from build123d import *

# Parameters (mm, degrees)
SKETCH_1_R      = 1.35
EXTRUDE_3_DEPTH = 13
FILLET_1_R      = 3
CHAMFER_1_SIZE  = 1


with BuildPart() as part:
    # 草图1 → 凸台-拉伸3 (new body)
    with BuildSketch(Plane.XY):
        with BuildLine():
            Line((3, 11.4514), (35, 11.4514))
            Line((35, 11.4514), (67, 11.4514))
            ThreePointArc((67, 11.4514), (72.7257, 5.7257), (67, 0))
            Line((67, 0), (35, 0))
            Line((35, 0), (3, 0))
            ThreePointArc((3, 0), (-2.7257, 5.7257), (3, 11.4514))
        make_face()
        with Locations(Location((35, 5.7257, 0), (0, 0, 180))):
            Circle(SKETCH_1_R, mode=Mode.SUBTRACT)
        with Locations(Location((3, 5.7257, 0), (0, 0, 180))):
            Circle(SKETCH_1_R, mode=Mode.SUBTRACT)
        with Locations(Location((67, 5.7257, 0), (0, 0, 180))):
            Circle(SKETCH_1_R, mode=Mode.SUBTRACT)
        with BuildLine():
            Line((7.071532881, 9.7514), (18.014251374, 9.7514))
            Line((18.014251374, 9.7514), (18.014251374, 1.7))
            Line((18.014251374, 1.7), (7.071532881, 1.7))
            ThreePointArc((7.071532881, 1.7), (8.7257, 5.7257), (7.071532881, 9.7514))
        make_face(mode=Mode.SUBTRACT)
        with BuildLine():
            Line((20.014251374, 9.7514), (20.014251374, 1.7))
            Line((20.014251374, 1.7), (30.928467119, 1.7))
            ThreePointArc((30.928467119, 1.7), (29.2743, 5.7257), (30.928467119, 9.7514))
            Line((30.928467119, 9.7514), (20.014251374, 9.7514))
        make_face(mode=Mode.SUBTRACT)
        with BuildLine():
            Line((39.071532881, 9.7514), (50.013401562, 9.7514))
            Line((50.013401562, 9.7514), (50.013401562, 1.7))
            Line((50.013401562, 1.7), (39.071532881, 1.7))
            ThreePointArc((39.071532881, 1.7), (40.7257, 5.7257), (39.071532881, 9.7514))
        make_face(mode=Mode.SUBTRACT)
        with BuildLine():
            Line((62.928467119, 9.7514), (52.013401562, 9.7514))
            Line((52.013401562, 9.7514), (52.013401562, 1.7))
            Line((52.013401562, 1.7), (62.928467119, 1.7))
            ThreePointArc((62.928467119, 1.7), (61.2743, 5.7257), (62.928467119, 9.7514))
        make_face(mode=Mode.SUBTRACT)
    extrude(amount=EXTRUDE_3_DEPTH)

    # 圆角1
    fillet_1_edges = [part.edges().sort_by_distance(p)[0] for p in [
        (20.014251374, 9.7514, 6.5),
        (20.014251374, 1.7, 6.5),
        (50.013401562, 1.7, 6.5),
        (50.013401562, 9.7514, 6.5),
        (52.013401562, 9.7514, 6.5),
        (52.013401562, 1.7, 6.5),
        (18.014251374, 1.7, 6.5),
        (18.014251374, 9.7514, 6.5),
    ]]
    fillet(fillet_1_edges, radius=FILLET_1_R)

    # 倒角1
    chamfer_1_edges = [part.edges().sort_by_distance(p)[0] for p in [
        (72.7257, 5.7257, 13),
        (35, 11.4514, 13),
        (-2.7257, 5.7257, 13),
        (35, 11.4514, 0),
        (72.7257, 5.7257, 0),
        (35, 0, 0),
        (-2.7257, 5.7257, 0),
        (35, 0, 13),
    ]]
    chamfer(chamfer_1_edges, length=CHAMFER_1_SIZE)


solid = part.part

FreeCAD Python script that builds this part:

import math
import FreeCAD as App
import Part
import Sketcher

V = App.Vector
Q = App.Units.Quantity


def edges_at(feature, points):
    """Names of the edges that pass closest to the given points."""
    edges = feature.Shape.Edges
    near = lambda p: min(range(len(edges)), key=lambda i: edges[i].distToShape(Part.Vertex(*p))[0])
    return sorted({f"Edge{near(p) + 1}" for p in points})

doc = App.newDocument("Part")
body = doc.addObject("PartDesign::Body", "Body")

sketch1 = doc.addObject("Sketcher::SketchObject", "Sketch")
body.addObject(sketch1)
sketch1.AttachmentSupport = (doc.XY_Plane, [""])
sketch1.MapMode = "FlatFace"
sketch1.addGeometry([
    Part.LineSegment(V(67, 11.5, 0), V(3, 11.5, 0)),
    Part.ArcOfCircle(Part.Circle(V(3, 5.7, 0), V(0, 0, 1), 5.7), math.radians(90), math.radians(270)),
    Part.LineSegment(V(3, 0, 0), V(67, 0, 0)),
    Part.ArcOfCircle(Part.Circle(V(67, 5.7, 0), V(0, 0, 1), 5.7), math.radians(-90), math.radians(90)),
    Part.Circle(V(67, 5.7, 0), V(0, 0, 1), 1.4),
    Part.ArcOfCircle(Part.Circle(V(67, 5.7, 0), V(0, 0, 1), 5.7), math.radians(135), math.radians(225)),
    Part.LineSegment(V(62.9, 1.7, 0), V(52, 1.7, 0)),
    Part.LineSegment(V(52, 1.7, 0), V(52, 9.8, 0)),
    Part.LineSegment(V(52, 9.8, 0), V(62.9, 9.8, 0)),
    Part.LineSegment(V(39.1, 9.8, 0), V(50, 9.8, 0)),
    Part.LineSegment(V(50, 9.8, 0), V(50, 1.7, 0)),
    Part.LineSegment(V(50, 1.7, 0), V(39.1, 1.7, 0)),
    Part.ArcOfCircle(Part.Circle(V(35, 5.7, 0), V(0, 0, 1), 5.7), math.radians(-45), math.radians(45)),
    Part.Circle(V(35, 5.7, 0), V(0, 0, 1), 1.4),
    Part.LineSegment(V(20, 9.8, 0), V(30.9, 9.8, 0)),
    Part.ArcOfCircle(Part.Circle(V(35, 5.7, 0), V(0, 0, 1), 5.7), math.radians(135), math.radians(225)),
    Part.LineSegment(V(30.9, 1.7, 0), V(20, 1.7, 0)),
    Part.LineSegment(V(20, 1.7, 0), V(20, 9.8, 0)),
    Part.LineSegment(V(7.1, 9.8, 0), V(18, 9.8, 0)),
    Part.LineSegment(V(18, 9.8, 0), V(18, 1.7, 0)),
    Part.LineSegment(V(18, 1.7, 0), V(7.1, 1.7, 0)),
    Part.ArcOfCircle(Part.Circle(V(3, 5.7, 0), V(0, 0, 1), 5.7), math.radians(-45), math.radians(45)),
    Part.Circle(V(3, 5.7, 0), V(0, 0, 1), 1.4),
], False)
sketch1.addConstraint([
    Sketcher.Constraint("Tangent", 0, 2, 1, 1),
    Sketcher.Constraint("Tangent", 1, 2, 2, 1),
    Sketcher.Constraint("Tangent", 2, 2, 3, 1),
    Sketcher.Constraint("Tangent", 3, 2, 0, 1),
    Sketcher.Constraint("Coincident", 5, 2, 6, 1),
    Sketcher.Constraint("Coincident", 6, 2, 7, 1),
    Sketcher.Constraint("Coincident", 7, 2, 8, 1),
    Sketcher.Constraint("Coincident", 8, 2, 5, 1),
    Sketcher.Constraint("Coincident", 9, 2, 10, 1),
    Sketcher.Constraint("Coincident", 10, 2, 11, 1),
    Sketcher.Constraint("Coincident", 11, 2, 12, 1),
    Sketcher.Constraint("Coincident", 12, 2, 9, 1),
    Sketcher.Constraint("Coincident", 14, 2, 15, 1),
    Sketcher.Constraint("Coincident", 15, 2, 16, 1),
    Sketcher.Constraint("Coincident", 16, 2, 17, 1),
    Sketcher.Constraint("Coincident", 17, 2, 14, 1),
    Sketcher.Constraint("Coincident", 18, 2, 19, 1),
    Sketcher.Constraint("Coincident", 19, 2, 20, 1),
    Sketcher.Constraint("Coincident", 20, 2, 21, 1),
    Sketcher.Constraint("Coincident", 21, 2, 18, 1),
    Sketcher.Constraint("Horizontal", 0),
    Sketcher.Constraint("Horizontal", 2),
    Sketcher.Constraint("Horizontal", 6),
    Sketcher.Constraint("Vertical", 7),
    Sketcher.Constraint("Horizontal", 8),
    Sketcher.Constraint("Horizontal", 9),
    Sketcher.Constraint("Vertical", 10),
    Sketcher.Constraint("Horizontal", 11),
    Sketcher.Constraint("Horizontal", 14),
    Sketcher.Constraint("Horizontal", 16),
    Sketcher.Constraint("Vertical", 17),
    Sketcher.Constraint("Horizontal", 18),
    Sketcher.Constraint("Vertical", 19),
    Sketcher.Constraint("Horizontal", 20),
    Sketcher.Constraint("Coincident", 4, 3, 3, 3),
    Sketcher.Constraint("Coincident", 5, 3, 3, 3),
    Sketcher.Constraint("Coincident", 13, 3, 12, 3),
    Sketcher.Constraint("Coincident", 15, 3, 12, 3),
    Sketcher.Constraint("Coincident", 21, 3, 1, 3),
    Sketcher.Constraint("Coincident", 22, 3, 1, 3),
    Sketcher.Constraint("Equal", 3, 5),
    Sketcher.Constraint("Equal", 5, 12),
    Sketcher.Constraint("Equal", 4, 13),
    Sketcher.Constraint("Equal", 12, 15),
    Sketcher.Constraint("Equal", 15, 21),
    Sketcher.Constraint("Equal", 13, 22),
    Sketcher.Constraint("PointOnObject", 1, 2, -1),
    Sketcher.Constraint("Horizontal", 5, 3, 12, 3),
    Sketcher.Constraint("Horizontal", 8, 2, 9, 2),
    Sketcher.Constraint("Horizontal", 6, 2, 10, 2),
    Sketcher.Constraint("Horizontal", 12, 2, 14, 2),
    Sketcher.Constraint("Horizontal", 11, 2, 15, 2),
    Sketcher.Constraint("Horizontal", 17, 2, 18, 2),
    Sketcher.Constraint("Horizontal", 16, 2, 19, 2),
    Sketcher.Constraint("Vertical", 5, 2, 8, 2),
    Sketcher.Constraint("Diameter", 4, Q("2.7 mm")),
    Sketcher.Constraint("DistanceX", 0, 2, 0, 1, Q("64 mm")),
    Sketcher.Constraint("DistanceX", -1, 1, 1, 3, Q("3 mm")),
    Sketcher.Constraint("DistanceX", -1, 1, 12, 3, Q("35 mm")),
    Sketcher.Constraint("DistanceX", 9, 2, 7, 2, Q("2 mm")),
    Sketcher.Constraint("DistanceX", 18, 2, 17, 2, Q("2 mm")),
    Sketcher.Constraint("DistanceY", -1, 1, 5, 2, Q("1.7 mm")),
    Sketcher.Constraint("Radius", 1, Q("5.7257 mm")),
    Sketcher.Constraint("DistanceX", 9, 1, 9, 2, Q("10.941869 mm")),
    Sketcher.Constraint("DistanceX", 18, 1, 18, 2, Q("10.942718 mm")),
])
pad1 = doc.addObject("PartDesign::Pad", "Pad")
body.addObject(pad1)
pad1.Profile = sketch1
pad1.Length = 13
doc.recompute()

fillet = doc.addObject("PartDesign::Fillet", "Fillet")
body.addObject(fillet)
fillet.Base = (pad1, edges_at(pad1, [
    (20.014, 9.751, 6.5),
    (20.014, 1.7, 6.5),
    (50.013, 1.7, 6.5),
    (50.013, 9.751, 6.5),
    (52.013, 9.751, 6.5),
    (52.013, 1.7, 6.5),
    (18.014, 1.7, 6.5),
    (18.014, 9.751, 6.5),
]))
fillet.Radius = 3
doc.recompute()

chamfer = doc.addObject("PartDesign::Chamfer", "Chamfer")
body.addObject(chamfer)
chamfer.Base = (fillet, edges_at(fillet, [
    (72.726, 5.726, 13),
    (35, 11.451, 13),
    (-2.726, 5.726, 13),
    (35, 11.451, 0),
    (72.726, 5.726, 0),
    (35, 0, 0),
    (-2.726, 5.726, 0),
    (35, 0, 13),
]))
chamfer.Size = 1

doc.recompute()
